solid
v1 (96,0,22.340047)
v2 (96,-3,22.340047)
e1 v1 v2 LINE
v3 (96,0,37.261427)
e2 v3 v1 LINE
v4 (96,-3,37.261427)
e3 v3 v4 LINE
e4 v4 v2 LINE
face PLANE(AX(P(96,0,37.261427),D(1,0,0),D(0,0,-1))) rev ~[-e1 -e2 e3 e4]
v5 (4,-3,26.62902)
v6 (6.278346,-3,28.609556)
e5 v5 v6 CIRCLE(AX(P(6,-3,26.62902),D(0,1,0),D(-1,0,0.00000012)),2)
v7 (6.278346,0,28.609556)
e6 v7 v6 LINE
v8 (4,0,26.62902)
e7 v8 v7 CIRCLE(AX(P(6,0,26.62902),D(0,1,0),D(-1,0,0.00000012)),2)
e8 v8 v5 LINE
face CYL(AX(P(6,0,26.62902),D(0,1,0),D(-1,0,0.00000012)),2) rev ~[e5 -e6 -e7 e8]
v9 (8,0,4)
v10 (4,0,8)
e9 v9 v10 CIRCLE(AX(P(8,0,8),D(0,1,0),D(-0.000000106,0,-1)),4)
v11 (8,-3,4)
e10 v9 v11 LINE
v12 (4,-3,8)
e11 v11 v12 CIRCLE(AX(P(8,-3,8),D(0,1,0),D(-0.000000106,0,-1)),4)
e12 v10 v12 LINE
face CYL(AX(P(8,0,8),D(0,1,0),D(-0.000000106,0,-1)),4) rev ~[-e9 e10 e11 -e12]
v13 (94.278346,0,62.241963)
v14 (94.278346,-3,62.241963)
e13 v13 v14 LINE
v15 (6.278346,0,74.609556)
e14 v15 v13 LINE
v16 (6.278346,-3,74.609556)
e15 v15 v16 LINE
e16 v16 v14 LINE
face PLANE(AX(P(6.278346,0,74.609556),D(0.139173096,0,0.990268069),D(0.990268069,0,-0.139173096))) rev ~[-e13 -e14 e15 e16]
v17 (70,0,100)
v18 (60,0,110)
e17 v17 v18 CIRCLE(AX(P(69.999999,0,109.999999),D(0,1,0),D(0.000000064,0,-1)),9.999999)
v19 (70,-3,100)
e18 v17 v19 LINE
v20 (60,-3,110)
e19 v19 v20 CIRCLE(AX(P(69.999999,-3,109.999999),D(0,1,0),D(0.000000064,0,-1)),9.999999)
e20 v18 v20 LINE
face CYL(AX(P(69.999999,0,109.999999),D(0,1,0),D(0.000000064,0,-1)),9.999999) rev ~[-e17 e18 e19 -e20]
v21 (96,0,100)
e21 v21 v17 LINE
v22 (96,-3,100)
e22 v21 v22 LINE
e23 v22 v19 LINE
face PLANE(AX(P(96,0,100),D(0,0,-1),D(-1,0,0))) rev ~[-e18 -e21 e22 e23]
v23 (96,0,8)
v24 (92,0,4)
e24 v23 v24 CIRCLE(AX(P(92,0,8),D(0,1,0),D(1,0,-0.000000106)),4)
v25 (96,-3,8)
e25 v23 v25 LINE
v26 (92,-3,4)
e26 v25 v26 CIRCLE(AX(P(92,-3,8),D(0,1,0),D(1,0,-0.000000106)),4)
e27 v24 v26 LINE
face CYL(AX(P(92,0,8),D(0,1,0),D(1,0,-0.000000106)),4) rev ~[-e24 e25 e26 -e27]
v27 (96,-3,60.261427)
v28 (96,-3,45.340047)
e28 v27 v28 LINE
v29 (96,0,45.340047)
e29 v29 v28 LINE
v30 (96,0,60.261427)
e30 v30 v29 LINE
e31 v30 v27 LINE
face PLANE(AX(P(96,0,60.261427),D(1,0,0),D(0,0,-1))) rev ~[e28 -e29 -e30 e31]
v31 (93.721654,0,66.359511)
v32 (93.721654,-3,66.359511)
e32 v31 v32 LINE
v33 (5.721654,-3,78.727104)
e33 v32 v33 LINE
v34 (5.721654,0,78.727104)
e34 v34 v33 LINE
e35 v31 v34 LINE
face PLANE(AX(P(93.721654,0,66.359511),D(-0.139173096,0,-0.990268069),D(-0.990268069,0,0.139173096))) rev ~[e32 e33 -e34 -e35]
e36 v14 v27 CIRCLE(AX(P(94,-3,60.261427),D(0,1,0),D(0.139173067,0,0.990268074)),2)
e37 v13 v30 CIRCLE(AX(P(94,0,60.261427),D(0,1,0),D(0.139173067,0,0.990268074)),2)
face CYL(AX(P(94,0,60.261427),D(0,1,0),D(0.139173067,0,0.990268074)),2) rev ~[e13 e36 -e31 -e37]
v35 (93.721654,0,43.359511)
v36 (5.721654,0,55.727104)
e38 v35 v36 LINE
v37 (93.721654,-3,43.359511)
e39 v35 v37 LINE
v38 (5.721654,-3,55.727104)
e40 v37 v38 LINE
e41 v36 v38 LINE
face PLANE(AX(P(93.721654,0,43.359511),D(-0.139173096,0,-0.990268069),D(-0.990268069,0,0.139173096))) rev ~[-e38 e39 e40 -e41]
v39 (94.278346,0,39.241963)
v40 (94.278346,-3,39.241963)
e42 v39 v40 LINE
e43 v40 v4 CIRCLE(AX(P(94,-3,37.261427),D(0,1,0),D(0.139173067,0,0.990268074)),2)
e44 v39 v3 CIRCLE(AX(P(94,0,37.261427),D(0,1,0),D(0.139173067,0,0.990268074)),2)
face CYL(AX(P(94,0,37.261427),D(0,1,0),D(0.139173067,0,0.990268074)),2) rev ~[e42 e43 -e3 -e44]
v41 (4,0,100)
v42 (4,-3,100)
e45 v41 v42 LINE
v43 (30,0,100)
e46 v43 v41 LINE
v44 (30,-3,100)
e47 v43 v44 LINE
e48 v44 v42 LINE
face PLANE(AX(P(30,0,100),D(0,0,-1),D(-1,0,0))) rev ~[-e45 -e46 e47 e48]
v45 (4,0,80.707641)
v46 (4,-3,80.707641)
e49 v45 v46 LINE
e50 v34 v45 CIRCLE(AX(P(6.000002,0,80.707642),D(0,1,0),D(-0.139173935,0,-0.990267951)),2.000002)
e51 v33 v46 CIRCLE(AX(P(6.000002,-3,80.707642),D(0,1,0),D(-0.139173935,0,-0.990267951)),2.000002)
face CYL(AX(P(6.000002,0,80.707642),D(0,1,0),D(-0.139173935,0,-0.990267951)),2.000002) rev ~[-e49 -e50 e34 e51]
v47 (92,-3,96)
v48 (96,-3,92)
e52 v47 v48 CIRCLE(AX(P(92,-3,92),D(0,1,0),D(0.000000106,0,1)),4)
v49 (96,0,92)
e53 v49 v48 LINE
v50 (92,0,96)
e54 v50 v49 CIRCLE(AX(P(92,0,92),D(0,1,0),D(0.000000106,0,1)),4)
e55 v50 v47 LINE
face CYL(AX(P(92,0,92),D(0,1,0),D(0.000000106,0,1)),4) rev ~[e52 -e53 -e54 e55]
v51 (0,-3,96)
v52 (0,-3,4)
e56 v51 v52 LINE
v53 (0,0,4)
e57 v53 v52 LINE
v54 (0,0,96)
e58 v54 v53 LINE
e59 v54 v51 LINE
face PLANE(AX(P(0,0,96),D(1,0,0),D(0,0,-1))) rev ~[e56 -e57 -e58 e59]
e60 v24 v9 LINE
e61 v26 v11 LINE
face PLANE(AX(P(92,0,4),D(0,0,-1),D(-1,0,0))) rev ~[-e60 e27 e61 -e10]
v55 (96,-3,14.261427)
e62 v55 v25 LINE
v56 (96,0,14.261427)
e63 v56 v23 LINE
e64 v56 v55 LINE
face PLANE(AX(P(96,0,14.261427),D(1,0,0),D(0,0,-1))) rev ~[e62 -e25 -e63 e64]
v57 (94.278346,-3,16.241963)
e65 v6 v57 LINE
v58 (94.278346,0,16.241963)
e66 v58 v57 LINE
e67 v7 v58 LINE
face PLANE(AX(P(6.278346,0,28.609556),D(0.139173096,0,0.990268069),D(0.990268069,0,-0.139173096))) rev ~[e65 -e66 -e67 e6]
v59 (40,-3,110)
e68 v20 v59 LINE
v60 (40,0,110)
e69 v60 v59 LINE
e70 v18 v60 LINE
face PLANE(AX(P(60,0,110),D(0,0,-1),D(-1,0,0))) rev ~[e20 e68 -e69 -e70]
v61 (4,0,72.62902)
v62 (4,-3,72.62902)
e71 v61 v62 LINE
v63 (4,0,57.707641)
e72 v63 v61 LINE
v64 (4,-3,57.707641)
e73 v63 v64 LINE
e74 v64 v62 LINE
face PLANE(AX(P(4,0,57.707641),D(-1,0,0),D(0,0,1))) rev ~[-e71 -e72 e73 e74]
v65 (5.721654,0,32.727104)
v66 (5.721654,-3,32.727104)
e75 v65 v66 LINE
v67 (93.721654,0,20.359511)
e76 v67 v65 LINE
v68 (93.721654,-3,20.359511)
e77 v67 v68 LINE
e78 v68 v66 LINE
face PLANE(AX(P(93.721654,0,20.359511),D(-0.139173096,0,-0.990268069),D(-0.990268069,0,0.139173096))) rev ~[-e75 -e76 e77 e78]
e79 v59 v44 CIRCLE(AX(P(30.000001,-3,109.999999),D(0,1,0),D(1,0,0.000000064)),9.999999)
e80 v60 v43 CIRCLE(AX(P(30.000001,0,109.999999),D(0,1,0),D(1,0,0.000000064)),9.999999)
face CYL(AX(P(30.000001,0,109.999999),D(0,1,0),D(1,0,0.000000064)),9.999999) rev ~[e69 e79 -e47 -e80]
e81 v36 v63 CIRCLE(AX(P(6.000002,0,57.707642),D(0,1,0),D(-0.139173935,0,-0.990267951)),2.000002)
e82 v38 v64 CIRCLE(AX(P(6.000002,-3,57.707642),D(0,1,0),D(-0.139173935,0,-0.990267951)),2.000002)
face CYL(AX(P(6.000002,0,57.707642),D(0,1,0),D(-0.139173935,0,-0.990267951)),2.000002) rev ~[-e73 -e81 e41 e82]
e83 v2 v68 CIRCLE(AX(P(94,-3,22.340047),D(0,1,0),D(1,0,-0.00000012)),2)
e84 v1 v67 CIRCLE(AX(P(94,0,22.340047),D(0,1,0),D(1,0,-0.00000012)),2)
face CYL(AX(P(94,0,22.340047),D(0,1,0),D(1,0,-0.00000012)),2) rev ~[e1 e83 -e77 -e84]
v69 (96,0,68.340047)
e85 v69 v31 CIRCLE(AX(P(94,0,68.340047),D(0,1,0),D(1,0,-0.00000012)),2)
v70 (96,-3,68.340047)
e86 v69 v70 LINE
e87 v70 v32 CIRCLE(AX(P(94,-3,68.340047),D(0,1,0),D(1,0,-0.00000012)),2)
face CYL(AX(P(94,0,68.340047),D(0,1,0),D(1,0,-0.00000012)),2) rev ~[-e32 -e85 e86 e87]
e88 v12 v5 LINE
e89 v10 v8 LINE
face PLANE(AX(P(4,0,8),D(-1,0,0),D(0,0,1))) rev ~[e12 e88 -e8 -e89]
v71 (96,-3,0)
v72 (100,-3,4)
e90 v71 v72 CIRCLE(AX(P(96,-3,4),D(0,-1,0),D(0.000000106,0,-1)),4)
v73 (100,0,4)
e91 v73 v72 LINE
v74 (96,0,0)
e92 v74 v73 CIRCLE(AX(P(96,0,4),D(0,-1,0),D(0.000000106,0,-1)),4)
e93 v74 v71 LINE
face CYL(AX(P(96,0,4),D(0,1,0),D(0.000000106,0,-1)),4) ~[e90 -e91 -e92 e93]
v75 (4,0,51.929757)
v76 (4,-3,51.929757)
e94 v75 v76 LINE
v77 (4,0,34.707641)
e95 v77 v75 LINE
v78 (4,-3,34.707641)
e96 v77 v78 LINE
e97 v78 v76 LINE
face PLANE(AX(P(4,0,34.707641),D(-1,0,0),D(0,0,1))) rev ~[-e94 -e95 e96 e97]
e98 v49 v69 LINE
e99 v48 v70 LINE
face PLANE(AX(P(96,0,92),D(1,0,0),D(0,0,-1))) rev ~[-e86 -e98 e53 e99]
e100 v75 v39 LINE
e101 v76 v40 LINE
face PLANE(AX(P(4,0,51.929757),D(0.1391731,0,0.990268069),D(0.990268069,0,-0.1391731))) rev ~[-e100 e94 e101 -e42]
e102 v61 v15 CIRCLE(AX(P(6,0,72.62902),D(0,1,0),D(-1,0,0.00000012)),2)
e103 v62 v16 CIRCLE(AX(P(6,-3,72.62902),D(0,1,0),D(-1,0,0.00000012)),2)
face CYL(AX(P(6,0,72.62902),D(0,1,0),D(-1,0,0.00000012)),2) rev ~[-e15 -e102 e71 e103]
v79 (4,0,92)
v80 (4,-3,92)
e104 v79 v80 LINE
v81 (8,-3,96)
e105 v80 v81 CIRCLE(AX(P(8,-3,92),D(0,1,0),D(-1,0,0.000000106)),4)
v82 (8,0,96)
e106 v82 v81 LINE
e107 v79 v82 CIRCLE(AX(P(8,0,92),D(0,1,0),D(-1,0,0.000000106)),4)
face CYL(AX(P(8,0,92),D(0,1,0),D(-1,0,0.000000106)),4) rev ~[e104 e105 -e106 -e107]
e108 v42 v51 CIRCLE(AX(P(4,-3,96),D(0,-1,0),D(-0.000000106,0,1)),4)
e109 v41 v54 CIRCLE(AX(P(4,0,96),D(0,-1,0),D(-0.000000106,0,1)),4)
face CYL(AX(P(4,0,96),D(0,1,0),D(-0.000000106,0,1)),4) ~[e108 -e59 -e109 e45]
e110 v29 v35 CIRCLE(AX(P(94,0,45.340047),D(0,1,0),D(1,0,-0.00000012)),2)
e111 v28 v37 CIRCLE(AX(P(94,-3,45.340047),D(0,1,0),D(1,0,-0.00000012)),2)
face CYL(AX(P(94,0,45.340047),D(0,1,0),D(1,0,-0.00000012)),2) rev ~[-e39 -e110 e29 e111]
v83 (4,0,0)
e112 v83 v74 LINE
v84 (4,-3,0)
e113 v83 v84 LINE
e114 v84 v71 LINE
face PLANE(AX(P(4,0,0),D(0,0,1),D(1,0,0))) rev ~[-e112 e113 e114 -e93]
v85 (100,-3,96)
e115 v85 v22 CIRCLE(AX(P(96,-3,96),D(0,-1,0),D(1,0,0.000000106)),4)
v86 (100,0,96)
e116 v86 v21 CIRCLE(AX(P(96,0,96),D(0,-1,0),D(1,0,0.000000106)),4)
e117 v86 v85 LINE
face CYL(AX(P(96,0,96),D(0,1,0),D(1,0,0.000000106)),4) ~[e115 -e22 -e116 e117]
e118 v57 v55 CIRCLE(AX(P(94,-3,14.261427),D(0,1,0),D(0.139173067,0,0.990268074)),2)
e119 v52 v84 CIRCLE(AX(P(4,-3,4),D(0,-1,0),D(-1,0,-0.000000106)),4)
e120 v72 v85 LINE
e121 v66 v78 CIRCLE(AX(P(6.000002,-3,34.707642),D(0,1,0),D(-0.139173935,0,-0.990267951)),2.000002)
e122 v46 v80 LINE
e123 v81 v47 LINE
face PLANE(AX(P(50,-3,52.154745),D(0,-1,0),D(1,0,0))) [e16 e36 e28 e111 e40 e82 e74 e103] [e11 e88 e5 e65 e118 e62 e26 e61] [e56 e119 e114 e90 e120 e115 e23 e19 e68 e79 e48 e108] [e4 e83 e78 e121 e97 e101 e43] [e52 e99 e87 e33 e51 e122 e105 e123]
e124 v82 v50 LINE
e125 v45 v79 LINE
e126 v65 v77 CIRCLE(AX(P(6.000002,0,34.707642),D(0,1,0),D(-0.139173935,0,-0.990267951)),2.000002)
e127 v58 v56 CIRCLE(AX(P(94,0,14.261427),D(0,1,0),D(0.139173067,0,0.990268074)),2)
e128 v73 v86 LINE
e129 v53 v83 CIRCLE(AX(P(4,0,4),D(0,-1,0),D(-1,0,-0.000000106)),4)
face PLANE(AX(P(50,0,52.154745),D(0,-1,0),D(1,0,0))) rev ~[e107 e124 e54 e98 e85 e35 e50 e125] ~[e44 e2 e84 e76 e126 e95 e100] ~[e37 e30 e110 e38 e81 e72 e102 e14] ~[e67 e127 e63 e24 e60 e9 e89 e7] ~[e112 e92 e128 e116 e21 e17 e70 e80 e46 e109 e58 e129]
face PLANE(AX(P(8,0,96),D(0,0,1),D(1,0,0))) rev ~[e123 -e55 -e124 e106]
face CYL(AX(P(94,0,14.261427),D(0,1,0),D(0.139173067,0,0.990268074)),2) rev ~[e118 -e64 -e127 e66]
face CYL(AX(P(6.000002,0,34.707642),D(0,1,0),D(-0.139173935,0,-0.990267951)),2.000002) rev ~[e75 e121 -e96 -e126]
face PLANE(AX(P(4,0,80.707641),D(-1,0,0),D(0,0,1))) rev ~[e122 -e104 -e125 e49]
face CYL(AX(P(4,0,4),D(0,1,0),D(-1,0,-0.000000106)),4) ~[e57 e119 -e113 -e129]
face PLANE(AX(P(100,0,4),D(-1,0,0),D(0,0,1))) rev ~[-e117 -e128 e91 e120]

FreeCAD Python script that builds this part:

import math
import FreeCAD as App
import Part
import Sketcher
from FreeCAD import Vector
Q = App.Units.Quantity

doc = App.newDocument("Part")
body = doc.addObject("PartDesign::Body", "Body")

sketch1 = body.newObject("Sketcher::SketchObject", "Sketch")
sketch1.AttachmentSupport = (doc.getObject("XZ_Plane"), [""])
sketch1.MapMode = "FlatFace"
sketch1.addGeometry([
    Part.ArcOfCircle(Part.Circle(Vector(4, 4, 0), Vector(0, 0, 1), 4), math.radians(-179.999994), math.radians(-90.000006)),
    Part.LineSegment(Vector(4, 0, 0), Vector(96, 0, 0)),
    Part.ArcOfCircle(Part.Circle(Vector(96, 4, 0), Vector(0, 0, 1), 4), math.radians(-89.999994), math.radians(-0.000006)),
    Part.LineSegment(Vector(100, 4, 0), Vector(100, 96, 0)),
    Part.ArcOfCircle(Part.Circle(Vector(96, 96, 0), Vector(0, 0, 1), 4), math.radians(0.000006), math.radians(89.999994)),
    Part.LineSegment(Vector(96, 100, 0), Vector(70, 100, 0)),
    Part.ArcOfCircle(Part.Circle(Vector(69.999999, 109.999999, 0), Vector(0, 0, 1), 9.999999), math.radians(179.999996), math.radians(270.000004)),
    Part.LineSegment(Vector(60, 110, 0), Vector(40, 110, 0)),
    Part.ArcOfCircle(Part.Circle(Vector(30.000001, 109.999999, 0), Vector(0, 0, 1), 9.999999), math.radians(-90.000004), math.radians(0.000004)),
    Part.LineSegment(Vector(30, 100, 0), Vector(4, 100, 0)),
    Part.ArcOfCircle(Part.Circle(Vector(4, 96, 0), Vector(0, 0, 1), 4), math.radians(90.000006), math.radians(179.999994)),
    Part.LineSegment(Vector(0, 96, 0), Vector(0, 4, 0)),
    Part.ArcOfCircle(Part.Circle(Vector(92, 8, 0), Vector(0, 0, 1), 4), math.radians(-89.999994), math.radians(-0.000006)),
    Part.LineSegment(Vector(92, 4, 0), Vector(8, 4, 0)),
    Part.ArcOfCircle(Part.Circle(Vector(8, 8, 0), Vector(0, 0, 1), 4), math.radians(-179.999994), math.radians(-90.000006)),
    Part.LineSegment(Vector(4, 8, 0), Vector(4, 26.62902, 0)),
    Part.ArcOfCircle(Part.Circle(Vector(6, 26.62902, 0), Vector(0, 0, 1), 2), math.radians(82.000008), math.radians(179.999993)),
    Part.LineSegment(Vector(6.278346, 28.609556, 0), Vector(94.278346, 16.241963, 0)),
    Part.ArcOfCircle(Part.Circle(Vector(94, 14.261427, 0), Vector(0, 0, 1), 2), math.radians(0.000009), math.radians(82.000002)),
    Part.LineSegment(Vector(96, 14.261427, 0), Vector(96, 8, 0)),
    Part.ArcOfCircle(Part.Circle(Vector(94, 22.340047, 0), Vector(0, 0, 1), 2), math.radians(-97.999992), math.radians(-0.000007)),
    Part.LineSegment(Vector(93.721654, 20.359511, 0), Vector(5.721654, 32.727104, 0)),
    Part.ArcOfCircle(Part.Circle(Vector(6.000002, 34.707642, 0), Vector(0, 0, 1), 2.000002), math.radians(-179.99997), math.radians(-98.000048)),
    Part.LineSegment(Vector(4, 34.707641, 0), Vector(4, 51.929757, 0)),
    Part.LineSegment(Vector(4, 51.929757, 0), Vector(94.278346, 39.241963, 0)),
    Part.ArcOfCircle(Part.Circle(Vector(94, 37.261427, 0), Vector(0, 0, 1), 2), math.radians(0.000009), math.radians(82.000002)),
    Part.LineSegment(Vector(96, 37.261427, 0), Vector(96, 22.340047, 0)),
    Part.ArcOfCircle(Part.Circle(Vector(94, 45.340047, 0), Vector(0, 0, 1), 2), math.radians(-97.999992), math.radians(-0.000007)),
    Part.LineSegment(Vector(93.721654, 43.359511, 0), Vector(5.721654, 55.727104, 0)),
    Part.ArcOfCircle(Part.Circle(Vector(6.000002, 57.707642, 0), Vector(0, 0, 1), 2.000002), math.radians(-179.99997), math.radians(-98.000048)),
    Part.LineSegment(Vector(4, 57.707641, 0), Vector(4, 72.62902, 0)),
    Part.ArcOfCircle(Part.Circle(Vector(6, 72.62902, 0), Vector(0, 0, 1), 2), math.radians(82.000008), math.radians(179.999993)),
    Part.LineSegment(Vector(6.278346, 74.609556, 0), Vector(94.278346, 62.241963, 0)),
    Part.ArcOfCircle(Part.Circle(Vector(94, 60.261427, 0), Vector(0, 0, 1), 2), math.radians(0.000009), math.radians(82.000002)),
    Part.LineSegment(Vector(96, 60.261427, 0), Vector(96, 45.340047, 0)),
    Part.LineSegment(Vector(4, 80.707641, 0), Vector(4, 92, 0)),
    Part.ArcOfCircle(Part.Circle(Vector(8, 92, 0), Vector(0, 0, 1), 4), math.radians(90.000006), math.radians(179.999994)),
    Part.LineSegment(Vector(8, 96, 0), Vector(92, 96, 0)),
    Part.ArcOfCircle(Part.Circle(Vector(92, 92, 0), Vector(0, 0, 1), 4), math.radians(0.000006), math.radians(89.999994)),
    Part.LineSegment(Vector(96, 92, 0), Vector(96, 68.340047, 0)),
    Part.ArcOfCircle(Part.Circle(Vector(94, 68.340047, 0), Vector(0, 0, 1), 2), math.radians(-97.999992), math.radians(-0.000007)),
    Part.LineSegment(Vector(93.721654, 66.359511, 0), Vector(5.721654, 78.727104, 0)),
    Part.ArcOfCircle(Part.Circle(Vector(6.000002, 80.707642, 0), Vector(0, 0, 1), 2.000002), math.radians(-179.99997), math.radians(-98.000048)),
], False)
sketch1.addConstraint([
    Sketcher.Constraint("Tangent", 0, 2, 1, 1),
    Sketcher.Constraint("Tangent", 1, 2, 2, 1),
    Sketcher.Constraint("Tangent", 2, 2, 3, 1),
    Sketcher.Constraint("Tangent", 3, 2, 4, 1),
    Sketcher.Constraint("Tangent", 4, 2, 5, 1),
    Sketcher.Constraint("Tangent", 5, 2, 6, 2),
    Sketcher.Constraint("Coincident", 6, 1, 7, 1),
    Sketcher.Constraint("Coincident", 7, 2, 8, 2),
    Sketcher.Constraint("Tangent", 8, 1, 9, 1),
    Sketcher.Constraint("Tangent", 9, 2, 10, 1),
    Sketcher.Constraint("Tangent", 10, 2, 11, 1),
    Sketcher.Constraint("Tangent", 11, 2, 0, 1),
    Sketcher.Constraint("Tangent", 12, 1, 13, 1),
    Sketcher.Constraint("Tangent", 13, 2, 14, 2),
    Sketcher.Constraint("Tangent", 14, 1, 15, 1),
    Sketcher.Constraint("Tangent", 15, 2, 16, 2),
    Sketcher.Constraint("Tangent", 16, 1, 17, 1),
    Sketcher.Constraint("Tangent", 17, 2, 18, 2),
    Sketcher.Constraint("Tangent", 18, 1, 19, 1),
    Sketcher.Constraint("Tangent", 19, 2, 12, 2),
    Sketcher.Constraint("Tangent", 20, 1, 21, 1),
    Sketcher.Constraint("Tangent", 21, 2, 22, 2),
    Sketcher.Constraint("Tangent", 22, 1, 23, 1),
    Sketcher.Constraint("Coincident", 23, 2, 24, 1),
    Sketcher.Constraint("Tangent", 24, 2, 25, 2),
    Sketcher.Constraint("Tangent", 25, 1, 26, 1),
    Sketcher.Constraint("Tangent", 26, 2, 20, 2),
    Sketcher.Constraint("Tangent", 27, 1, 28, 1),
    Sketcher.Constraint("Tangent", 28, 2, 29, 2),
    Sketcher.Constraint("Tangent", 29, 1, 30, 1),
    Sketcher.Constraint("Tangent", 30, 2, 31, 2),
    Sketcher.Constraint("Tangent", 31, 1, 32, 1),
    Sketcher.Constraint("Tangent", 32, 2, 33, 2),
    Sketcher.Constraint("Tangent", 33, 1, 34, 1),
    Sketcher.Constraint("Tangent", 34, 2, 27, 2),
    Sketcher.Constraint("Tangent", 35, 2, 36, 2),
    Sketcher.Constraint("Tangent", 36, 1, 37, 1),
    Sketcher.Constraint("Tangent", 37, 2, 38, 2),
    Sketcher.Constraint("Tangent", 38, 1, 39, 1),
    Sketcher.Constraint("Tangent", 39, 2, 40, 2),
    Sketcher.Constraint("Tangent", 40, 1, 41, 1),
    Sketcher.Constraint("Tangent", 41, 2, 42, 2),
    Sketcher.Constraint("Tangent", 42, 1, 35, 1),
    Sketcher.Constraint("Horizontal", 1),
    Sketcher.Constraint("Vertical", 3),
    Sketcher.Constraint("Horizontal", 5),
    Sketcher.Constraint("Horizontal", 7),
    Sketcher.Constraint("Horizontal", 9),
    Sketcher.Constraint("Vertical", 11),
    Sketcher.Constraint("Horizontal", 13),
    Sketcher.Constraint("Vertical", 15),
    Sketcher.Constraint("Vertical", 19),
    Sketcher.Constraint("Vertical", 23),
    Sketcher.Constraint("Vertical", 26),
    Sketcher.Constraint("Vertical", 30),
    Sketcher.Constraint("Vertical", 34),
    Sketcher.Constraint("Vertical", 35),
    Sketcher.Constraint("Horizontal", 37),
    Sketcher.Constraint("Vertical", 39),
    Sketcher.Constraint("Equal", 0, 2),
    Sketcher.Constraint("Equal", 2, 4),
    Sketcher.Constraint("Equal", 6, 8),
    Sketcher.Constraint("Equal", 4, 10),
    Sketcher.Constraint("Equal", 10, 12),
    Sketcher.Constraint("Equal", 12, 14),
    Sketcher.Constraint("Equal", 16, 18),
    Sketcher.Constraint("Equal", 18, 20),
    Sketcher.Constraint("Equal", 20, 25),
    Sketcher.Constraint("Equal", 25, 27),
    Sketcher.Constraint("Equal", 22, 29),
    Sketcher.Constraint("Equal", 27, 31),
    Sketcher.Constraint("Equal", 31, 33),
    Sketcher.Constraint("Equal", 14, 36),
    Sketcher.Constraint("Equal", 36, 38),
    Sketcher.Constraint("Equal", 33, 40),
    Sketcher.Constraint("Equal", 29, 42),
    Sketcher.Constraint("PointOnObject", 0, 2, -1),
    Sketcher.Constraint("PointOnObject", 10, 2, -2),
    Sketcher.Constraint("Parallel", 17, 21),
    Sketcher.Constraint("Parallel", 21, 24),
    Sketcher.Constraint("Parallel", 24, 28),
    Sketcher.Constraint("Parallel", 28, 32),
    Sketcher.Constraint("Parallel", 32, 41),
    Sketcher.Constraint("Horizontal", 6, 3, 8, 3),
    Sketcher.Constraint("Horizontal", 8, 3, 6, 1),
    Sketcher.Constraint("Horizontal", 11, 2, 12, 1),
    Sketcher.Constraint("Horizontal", 10, 2, 36, 1),
    Sketcher.Constraint("Vertical", 18, 3, 20, 3),
    Sketcher.Constraint("Vertical", 25, 3, 27, 3),
    Sketcher.Constraint("Vertical", 22, 3, 29, 3),
    Sketcher.Constraint("Vertical", 16, 3, 31, 3),
    Sketcher.Constraint("Vertical", 14, 3, 36, 3),
    Sketcher.Constraint("Vertical", 12, 3, 38, 3),
    Sketcher.Constraint("Vertical", 9, 2, 14, 1),
    Sketcher.Constraint("Vertical", 4, 2, 18, 1),
    Sketcher.Constraint("Equal", 5, 9),
    Sketcher.Constraint("Equal", 1, 3),
    Sketcher.Constraint("Equal", 26, 30),
    Sketcher.Constraint("Equal", 30, 34),
    Sketcher.Constraint("Radius", 0, Q("4 mm")),
    Sketcher.Constraint("Radius", 6, Q("9.999999 mm")),
    Sketcher.Constraint("Radius", 16, Q("2 mm")),
    Sketcher.Constraint("DistanceX", 1, 1, 1, 2, Q("92 mm")),
    Sketcher.Constraint("DistanceX", 5, 2, 5, 1, Q("26 mm")),
    Sketcher.Constraint("Angle", 17, Q("-8 deg")),
    Sketcher.Constraint("DistanceY", 15, 1, 15, 2, Q("18.62902 mm")),
    Sketcher.Constraint("DistanceY", 26, 2, 26, 1, Q("14.92138 mm")),
    Sketcher.Constraint("DistanceY", 35, 1, 35, 2, Q("11.292359 mm")),
    Sketcher.Constraint("DistanceY", -1, 1, 31, 3, Q("72.62902 mm")),
    Sketcher.Constraint("DistanceY", -1, 1, 20, 1, Q("20.359511 mm")),
])
pad1 = body.newObject("PartDesign::Pad", "Pad")
pad1.Profile = sketch1
pad1.Length = 3

doc.recompute()
